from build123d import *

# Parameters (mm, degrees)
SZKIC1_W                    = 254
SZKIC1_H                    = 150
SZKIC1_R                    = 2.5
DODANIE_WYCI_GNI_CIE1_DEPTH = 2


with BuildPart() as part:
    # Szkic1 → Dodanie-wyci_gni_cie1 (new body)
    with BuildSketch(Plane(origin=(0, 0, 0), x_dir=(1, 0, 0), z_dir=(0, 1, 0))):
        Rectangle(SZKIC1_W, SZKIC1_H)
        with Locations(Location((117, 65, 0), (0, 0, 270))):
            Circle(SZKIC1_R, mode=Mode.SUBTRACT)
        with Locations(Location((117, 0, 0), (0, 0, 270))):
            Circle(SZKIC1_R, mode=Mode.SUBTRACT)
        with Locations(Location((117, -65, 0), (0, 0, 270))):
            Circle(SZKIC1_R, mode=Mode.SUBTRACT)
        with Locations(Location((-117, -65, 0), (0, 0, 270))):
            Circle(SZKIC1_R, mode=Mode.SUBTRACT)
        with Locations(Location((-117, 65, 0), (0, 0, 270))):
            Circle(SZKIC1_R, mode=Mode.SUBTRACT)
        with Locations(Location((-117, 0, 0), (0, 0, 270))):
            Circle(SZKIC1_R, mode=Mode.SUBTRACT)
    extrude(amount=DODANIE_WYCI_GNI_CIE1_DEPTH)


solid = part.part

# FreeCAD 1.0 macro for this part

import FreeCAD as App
import Part
import Sketcher

doc = App.newDocument("Part")
body = doc.addObject("PartDesign::Body", "Body")

sketch1 = doc.addObject("Sketcher::SketchObject", "Sketch")
body.addObject(sketch1)
sketch1.AttachmentSupport = (doc.XZ_Plane, [""])
sketch1.MapMode = "FlatFace"
sketch1.addGeometry(Part.LineSegment(App.Vector(-127, -75, 0), App.Vector(-127, 75, 0)), False)
sketch1.addGeometry(Part.LineSegment(App.Vector(-127, 75, 0), App.Vector(127, 75, 0)), False)
sketch1.addGeometry(Part.LineSegment(App.Vector(127, 75, 0), App.Vector(127, -75, 0)), False)
sketch1.addGeometry(Part.LineSegment(App.Vector(127, -75, 0), App.Vector(-127, -75, 0)), False)
sketch1.addGeometry(Part.Circle(App.Vector(-117, 65, 0), App.Vector(0, 0, 1), 2.5), False)
sketch1.addGeometry(Part.Circle(App.Vector(117, 65, 0), App.Vector(0, 0, 1), 2.5), False)
sketch1.addGeometry(Part.Circle(App.Vector(-117, 0, 0), App.Vector(0, 0, 1), 2.5), False)
sketch1.addGeometry(Part.Circle(App.Vector(-117, -65, 0), App.Vector(0, 0, 1), 2.5), False)
sketch1.addGeometry(Part.Circle(App.Vector(117, 0, 0), App.Vector(0, 0, 1), 2.5), False)
sketch1.addGeometry(Part.Circle(App.Vector(117, -65, 0), App.Vector(0, 0, 1), 2.5), False)
sketch1.addConstraint(Sketcher.Constraint("Coincident", 0, 2, 1, 1))
sketch1.addConstraint(Sketcher.Constraint("Coincident", 1, 2, 2, 1))
sketch1.addConstraint(Sketcher.Constraint("Coincident", 2, 2, 3, 1))
sketch1.addConstraint(Sketcher.Constraint("Coincident", 3, 2, 0, 1))
sketch1.addConstraint(Sketcher.Constraint("Vertical", 0))
sketch1.addConstraint(Sketcher.Constraint("Horizontal", 1))
sketch1.addConstraint(Sketcher.Constraint("Vertical", 2))
sketch1.addConstraint(Sketcher.Constraint("Horizontal", 3))
sketch1.addConstraint(Sketcher.Constraint("Equal", 4, 5))
sketch1.addConstraint(Sketcher.Constraint("Equal", 5, 6))
sketch1.addConstraint(Sketcher.Constraint("Equal", 6, 7))
sketch1.addConstraint(Sketcher.Constraint("Equal", 7, 8))
sketch1.addConstraint(Sketcher.Constraint("Equal", 8, 9))
sketch1.addConstraint(Sketcher.Constraint("Symmetric", 5, 3, 7, 3, -1, 1))
sketch1.addConstraint(Sketcher.Constraint("Symmetric", 6, 3, 8, 3, -1, 1))
sketch1.addConstraint(Sketcher.Constraint("Symmetric", 4, 3, 9, 3, -1, 1))
sketch1.addConstraint(Sketcher.Constraint("Symmetric", 0, 2, 2, 2, -1, 1))
sketch1.addConstraint(Sketcher.Constraint("Symmetric", 4, 3, 5, 3, -2))
sketch1.addConstraint(Sketcher.Constraint("PointOnObject", 6, 3, -1))
sketch1.addConstraint(Sketcher.Constraint("Vertical", 4, 3, 6, 3))
sketch1.addConstraint(Sketcher.Constraint("Diameter", 4, 5.0))
sketch1.addConstraint(Sketcher.Constraint("DistanceX", 1, 1, 1, 2, 254.0))
sketch1.addConstraint(Sketcher.Constraint("DistanceY", 0, 1, 0, 2, 150.0))
sketch1.addConstraint(Sketcher.Constraint("DistanceX", 4, 3, -1, 1, 117.0))
sketch1.addConstraint(Sketcher.Constraint("DistanceY", -1, 1, 4, 3, 65.0))
pad1 = doc.addObject("PartDesign::Pad", "Pad")
body.addObject(pad1)
pad1.Profile = sketch1
pad1.Length = 2
pad1.Reversed = True

doc.recompute()
